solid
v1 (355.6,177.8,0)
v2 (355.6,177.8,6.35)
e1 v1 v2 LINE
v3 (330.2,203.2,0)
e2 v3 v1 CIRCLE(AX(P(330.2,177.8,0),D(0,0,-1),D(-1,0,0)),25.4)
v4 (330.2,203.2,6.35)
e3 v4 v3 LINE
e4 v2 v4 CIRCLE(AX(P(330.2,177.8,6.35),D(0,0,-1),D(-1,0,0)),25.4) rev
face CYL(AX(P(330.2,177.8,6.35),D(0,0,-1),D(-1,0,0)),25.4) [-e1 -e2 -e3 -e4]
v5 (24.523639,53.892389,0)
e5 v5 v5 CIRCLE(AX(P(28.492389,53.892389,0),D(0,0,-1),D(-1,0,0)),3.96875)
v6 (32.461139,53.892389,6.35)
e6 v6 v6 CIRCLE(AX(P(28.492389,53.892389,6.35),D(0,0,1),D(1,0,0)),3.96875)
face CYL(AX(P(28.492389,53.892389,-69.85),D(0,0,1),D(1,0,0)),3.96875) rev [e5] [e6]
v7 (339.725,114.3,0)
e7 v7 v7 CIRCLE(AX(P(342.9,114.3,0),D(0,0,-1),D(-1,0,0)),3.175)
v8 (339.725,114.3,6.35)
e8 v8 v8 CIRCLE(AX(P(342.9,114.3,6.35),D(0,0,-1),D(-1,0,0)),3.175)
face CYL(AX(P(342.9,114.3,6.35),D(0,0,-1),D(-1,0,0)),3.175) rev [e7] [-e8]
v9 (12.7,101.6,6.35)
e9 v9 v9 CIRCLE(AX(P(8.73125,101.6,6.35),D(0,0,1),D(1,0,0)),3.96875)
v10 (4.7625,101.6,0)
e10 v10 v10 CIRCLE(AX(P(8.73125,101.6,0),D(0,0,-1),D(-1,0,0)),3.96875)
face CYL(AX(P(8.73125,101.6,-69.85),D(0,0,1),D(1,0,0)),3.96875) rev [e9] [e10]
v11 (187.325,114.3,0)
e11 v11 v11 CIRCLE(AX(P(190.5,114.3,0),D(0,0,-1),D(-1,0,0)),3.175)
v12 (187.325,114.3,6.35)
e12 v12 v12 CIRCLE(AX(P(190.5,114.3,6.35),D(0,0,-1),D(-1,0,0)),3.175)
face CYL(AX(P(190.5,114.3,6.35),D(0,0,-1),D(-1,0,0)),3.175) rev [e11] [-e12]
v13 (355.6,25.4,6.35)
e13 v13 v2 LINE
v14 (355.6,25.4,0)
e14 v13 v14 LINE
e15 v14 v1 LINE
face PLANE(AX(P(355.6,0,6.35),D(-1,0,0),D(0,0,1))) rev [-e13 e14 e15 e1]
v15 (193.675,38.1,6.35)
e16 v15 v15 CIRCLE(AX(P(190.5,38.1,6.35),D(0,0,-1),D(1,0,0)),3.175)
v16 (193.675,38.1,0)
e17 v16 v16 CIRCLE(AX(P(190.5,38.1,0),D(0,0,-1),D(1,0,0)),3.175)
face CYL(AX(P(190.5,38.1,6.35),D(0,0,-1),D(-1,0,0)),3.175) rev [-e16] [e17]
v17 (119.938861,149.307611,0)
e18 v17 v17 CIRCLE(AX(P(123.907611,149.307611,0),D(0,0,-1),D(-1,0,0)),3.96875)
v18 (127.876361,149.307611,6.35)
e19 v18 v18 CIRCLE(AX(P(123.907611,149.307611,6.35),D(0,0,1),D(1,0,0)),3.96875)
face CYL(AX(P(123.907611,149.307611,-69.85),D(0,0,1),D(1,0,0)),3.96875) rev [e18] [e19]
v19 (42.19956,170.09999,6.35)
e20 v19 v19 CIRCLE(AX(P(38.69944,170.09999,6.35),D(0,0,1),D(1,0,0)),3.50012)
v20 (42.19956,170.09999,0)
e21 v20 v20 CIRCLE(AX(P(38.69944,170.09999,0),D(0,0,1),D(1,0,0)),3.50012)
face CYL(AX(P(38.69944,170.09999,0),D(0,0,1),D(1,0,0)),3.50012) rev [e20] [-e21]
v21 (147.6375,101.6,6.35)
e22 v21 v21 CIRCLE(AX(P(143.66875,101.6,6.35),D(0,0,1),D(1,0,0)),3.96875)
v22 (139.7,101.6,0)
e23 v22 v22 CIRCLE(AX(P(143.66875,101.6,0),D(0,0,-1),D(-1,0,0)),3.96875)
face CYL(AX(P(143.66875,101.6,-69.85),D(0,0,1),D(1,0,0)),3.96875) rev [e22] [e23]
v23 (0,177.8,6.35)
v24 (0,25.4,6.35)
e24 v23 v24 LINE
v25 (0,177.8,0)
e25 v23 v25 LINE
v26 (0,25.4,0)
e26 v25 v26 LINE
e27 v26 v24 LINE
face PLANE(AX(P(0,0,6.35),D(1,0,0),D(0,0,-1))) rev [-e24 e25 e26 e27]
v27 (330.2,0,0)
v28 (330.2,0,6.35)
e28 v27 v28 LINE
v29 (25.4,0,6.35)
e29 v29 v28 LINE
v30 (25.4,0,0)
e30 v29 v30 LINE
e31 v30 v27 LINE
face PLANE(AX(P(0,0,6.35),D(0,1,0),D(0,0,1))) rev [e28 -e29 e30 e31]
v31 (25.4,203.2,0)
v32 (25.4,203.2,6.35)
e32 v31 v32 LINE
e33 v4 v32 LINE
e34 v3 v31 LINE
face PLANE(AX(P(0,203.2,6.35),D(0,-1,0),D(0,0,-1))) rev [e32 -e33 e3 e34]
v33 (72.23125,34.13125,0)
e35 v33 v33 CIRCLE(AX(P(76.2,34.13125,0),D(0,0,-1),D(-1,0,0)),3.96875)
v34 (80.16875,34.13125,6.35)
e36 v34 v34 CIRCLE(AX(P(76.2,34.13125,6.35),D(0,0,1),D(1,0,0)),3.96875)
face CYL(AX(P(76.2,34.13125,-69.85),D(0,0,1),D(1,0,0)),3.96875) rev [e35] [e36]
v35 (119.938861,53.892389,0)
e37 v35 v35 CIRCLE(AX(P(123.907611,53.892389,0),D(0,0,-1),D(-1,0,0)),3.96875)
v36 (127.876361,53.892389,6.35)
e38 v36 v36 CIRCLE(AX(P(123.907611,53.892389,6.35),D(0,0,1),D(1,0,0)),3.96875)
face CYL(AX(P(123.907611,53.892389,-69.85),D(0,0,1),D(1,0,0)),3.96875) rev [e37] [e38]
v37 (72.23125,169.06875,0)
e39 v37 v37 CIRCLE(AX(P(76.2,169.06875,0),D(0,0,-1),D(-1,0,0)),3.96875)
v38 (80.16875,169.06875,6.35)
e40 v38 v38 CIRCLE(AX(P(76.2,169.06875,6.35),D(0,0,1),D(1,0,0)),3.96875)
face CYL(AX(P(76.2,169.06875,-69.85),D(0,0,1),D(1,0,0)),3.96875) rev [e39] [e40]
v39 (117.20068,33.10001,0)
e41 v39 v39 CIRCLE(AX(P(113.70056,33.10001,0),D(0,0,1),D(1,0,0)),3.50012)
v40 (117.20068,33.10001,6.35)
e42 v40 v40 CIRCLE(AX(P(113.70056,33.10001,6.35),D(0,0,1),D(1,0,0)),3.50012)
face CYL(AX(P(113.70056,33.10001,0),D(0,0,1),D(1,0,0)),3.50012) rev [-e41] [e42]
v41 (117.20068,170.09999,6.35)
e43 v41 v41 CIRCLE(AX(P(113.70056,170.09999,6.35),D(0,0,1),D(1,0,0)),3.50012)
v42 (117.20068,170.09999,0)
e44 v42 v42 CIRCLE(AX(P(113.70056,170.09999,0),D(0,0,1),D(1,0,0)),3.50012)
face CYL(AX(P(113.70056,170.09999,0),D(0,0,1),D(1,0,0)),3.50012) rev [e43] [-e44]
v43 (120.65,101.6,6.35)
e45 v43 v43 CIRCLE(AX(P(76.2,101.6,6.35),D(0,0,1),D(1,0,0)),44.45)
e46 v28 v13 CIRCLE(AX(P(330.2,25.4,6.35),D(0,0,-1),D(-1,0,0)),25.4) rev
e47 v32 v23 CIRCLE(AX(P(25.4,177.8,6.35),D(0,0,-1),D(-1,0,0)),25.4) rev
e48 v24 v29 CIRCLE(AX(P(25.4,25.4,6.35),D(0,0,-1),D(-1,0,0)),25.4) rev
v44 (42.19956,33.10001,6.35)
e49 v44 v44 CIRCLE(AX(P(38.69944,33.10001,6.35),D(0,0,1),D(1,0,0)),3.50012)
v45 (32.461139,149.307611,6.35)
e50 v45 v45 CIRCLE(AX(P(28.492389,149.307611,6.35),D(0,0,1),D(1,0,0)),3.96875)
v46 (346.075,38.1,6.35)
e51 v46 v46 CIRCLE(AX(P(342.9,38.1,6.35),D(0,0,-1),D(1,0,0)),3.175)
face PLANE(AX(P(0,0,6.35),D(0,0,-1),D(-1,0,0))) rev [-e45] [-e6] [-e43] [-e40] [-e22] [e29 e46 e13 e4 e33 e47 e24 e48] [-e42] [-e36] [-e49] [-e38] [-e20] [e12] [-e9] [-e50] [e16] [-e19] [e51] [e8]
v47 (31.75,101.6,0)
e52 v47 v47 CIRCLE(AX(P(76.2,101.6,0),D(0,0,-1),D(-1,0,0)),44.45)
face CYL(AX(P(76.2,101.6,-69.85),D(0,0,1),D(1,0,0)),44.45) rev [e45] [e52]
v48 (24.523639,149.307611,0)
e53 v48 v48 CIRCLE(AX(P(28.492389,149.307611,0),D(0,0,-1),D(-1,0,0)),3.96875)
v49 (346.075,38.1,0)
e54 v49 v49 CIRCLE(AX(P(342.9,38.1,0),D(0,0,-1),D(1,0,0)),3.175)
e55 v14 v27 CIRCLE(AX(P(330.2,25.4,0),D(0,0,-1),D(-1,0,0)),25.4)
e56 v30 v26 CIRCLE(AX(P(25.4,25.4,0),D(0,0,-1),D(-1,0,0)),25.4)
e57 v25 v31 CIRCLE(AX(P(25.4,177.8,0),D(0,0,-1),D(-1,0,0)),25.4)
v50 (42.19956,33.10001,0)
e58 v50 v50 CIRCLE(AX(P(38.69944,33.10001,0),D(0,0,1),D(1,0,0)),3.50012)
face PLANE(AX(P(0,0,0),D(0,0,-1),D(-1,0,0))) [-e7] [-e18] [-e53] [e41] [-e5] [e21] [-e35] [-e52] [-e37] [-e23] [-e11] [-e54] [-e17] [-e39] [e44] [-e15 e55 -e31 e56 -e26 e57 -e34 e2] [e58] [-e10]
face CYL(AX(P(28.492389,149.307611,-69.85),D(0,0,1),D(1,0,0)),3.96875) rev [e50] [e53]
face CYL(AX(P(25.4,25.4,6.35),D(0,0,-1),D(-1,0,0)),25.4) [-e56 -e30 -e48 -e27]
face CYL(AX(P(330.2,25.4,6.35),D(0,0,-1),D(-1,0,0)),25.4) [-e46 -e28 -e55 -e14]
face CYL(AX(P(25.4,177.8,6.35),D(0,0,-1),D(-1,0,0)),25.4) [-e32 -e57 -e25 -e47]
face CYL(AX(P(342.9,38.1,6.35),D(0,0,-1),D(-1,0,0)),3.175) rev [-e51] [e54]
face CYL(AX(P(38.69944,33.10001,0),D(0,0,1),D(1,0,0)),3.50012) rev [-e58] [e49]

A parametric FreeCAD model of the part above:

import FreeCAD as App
import Part
import Sketcher

V = App.Vector
Q = App.Units.Quantity


def edges_at(feature, points):
    """Names of the edges that pass closest to the given points."""
    edges = feature.Shape.Edges
    near = lambda p: min(range(len(edges)), key=lambda i: edges[i].distToShape(Part.Vertex(*p))[0])
    return sorted({f"Edge{near(p) + 1}" for p in points})

doc = App.newDocument("Part")
body = doc.addObject("PartDesign::Body", "Body")

sketch1 = doc.addObject("Sketcher::SketchObject", "Sketch")
body.addObject(sketch1)
sketch1.AttachmentSupport = (doc.XY_Plane, [""])
sketch1.MapMode = "FlatFace"
sketch1.addGeometry(Part.LineSegment(V(0, 203.2, 0), V(0, 0, 0)), False)
sketch1.addGeometry(Part.LineSegment(V(0, 0, 0), V(355.6, 0, 0)), False)
sketch1.addGeometry(Part.LineSegment(V(355.6, 0, 0), V(355.6, 203.2, 0)), False)
sketch1.addGeometry(Part.LineSegment(V(355.6, 203.2, 0), V(0, 203.2, 0)), False)
sketch1.addConstraint(Sketcher.Constraint("Coincident", 0, 2, 1, 1))
sketch1.addConstraint(Sketcher.Constraint("Coincident", 1, 2, 2, 1))
sketch1.addConstraint(Sketcher.Constraint("Coincident", 2, 2, 3, 1))
sketch1.addConstraint(Sketcher.Constraint("Coincident", 3, 2, 0, 1))
sketch1.addConstraint(Sketcher.Constraint("Vertical", 0))
sketch1.addConstraint(Sketcher.Constraint("Horizontal", 1))
sketch1.addConstraint(Sketcher.Constraint("Vertical", 2))
sketch1.addConstraint(Sketcher.Constraint("Horizontal", 3))
sketch1.addConstraint(Sketcher.Constraint("Coincident", 0, 2, -1, 1))
sketch1.addConstraint(Sketcher.Constraint("DistanceX", 1, 1, 1, 2, Q("14 in")))
sketch1.addConstraint(Sketcher.Constraint("DistanceY", 0, 2, 0, 1, Q("8 in")))
pad1 = doc.addObject("PartDesign::Pad", "Pad")
body.addObject(pad1)
pad1.Profile = sketch1
pad1.Length = Q("0.25 in")

sketch2 = doc.addObject("Sketcher::SketchObject", "Sketch001")
body.addObject(sketch2)
sketch2.AttachmentSupport = (doc.XY_Plane, [""])
sketch2.MapMode = "FlatFace"
sketch2.AttachmentOffset = App.Placement(V(0, 0, 0.25 * 25.4), App.Rotation())
sketch2.addGeometry(Part.Circle(V(76.2, 101.6, 0), V(0, 0, 1), 44.45), False)
sketch2.addGeometry(Part.Circle(V(143.66875, 101.6, 0), V(0, 0, 1), 3.96875), False)
sketch2.addGeometry(Part.Circle(V(123.907611, 53.892389, 0), V(0, 0, 1), 3.96875), False)
sketch2.addGeometry(Part.Circle(V(76.2, 34.13125, 0), V(0, 0, 1), 3.96875), False)
sketch2.addGeometry(Part.Circle(V(28.492389, 53.892389, 0), V(0, 0, 1), 3.96875), False)
sketch2.addGeometry(Part.Circle(V(8.73125, 101.6, 0), V(0, 0, 1), 3.96875), False)
sketch2.addGeometry(Part.Circle(V(28.492389, 149.307611, 0), V(0, 0, 1), 3.96875), False)
sketch2.addGeometry(Part.Circle(V(76.2, 169.06875, 0), V(0, 0, 1), 3.96875), False)
sketch2.addGeometry(Part.Circle(V(123.907611, 149.307611, 0), V(0, 0, 1), 3.96875), False)
sketch2.addConstraint(Sketcher.Constraint("Equal", 1, 2))
sketch2.addConstraint(Sketcher.Constraint("Equal", 2, 3))
sketch2.addConstraint(Sketcher.Constraint("Equal", 3, 4))
sketch2.addConstraint(Sketcher.Constraint("Equal", 4, 5))
sketch2.addConstraint(Sketcher.Constraint("Equal", 5, 6))
sketch2.addConstraint(Sketcher.Constraint("Equal", 6, 7))
sketch2.addConstraint(Sketcher.Constraint("Equal", 7, 8))
sketch2.addConstraint(Sketcher.Constraint("Horizontal", 0, 3, 1, 3))
sketch2.addConstraint(Sketcher.Constraint("Horizontal", 2, 3, 4, 3))
sketch2.addConstraint(Sketcher.Constraint("Horizontal", 1, 3, 5, 3))
sketch2.addConstraint(Sketcher.Constraint("Horizontal", 6, 3, 8, 3))
sketch2.addConstraint(Sketcher.Constraint("Vertical", 0, 3, 3, 3))
sketch2.addConstraint(Sketcher.Constraint("Vertical", 4, 3, 6, 3))
sketch2.addConstraint(Sketcher.Constraint("Vertical", 3, 3, 7, 3))
sketch2.addConstraint(Sketcher.Constraint("Vertical", 2, 3, 8, 3))
sketch2.addConstraint(Sketcher.Constraint("Diameter", 0, Q("3.5 in")))
sketch2.addConstraint(Sketcher.Constraint("Diameter", 1, Q("0.3125 in")))
sketch2.addConstraint(Sketcher.Constraint("DistanceX", -1, 1, 0, 3, Q("3 in")))
sketch2.addConstraint(Sketcher.Constraint("DistanceY", -1, 1, 0, 3, Q("4 in")))
sketch2.addConstraint(Sketcher.Constraint("DistanceX", -1, 1, 1, 3, Q("5.65625 in")))
sketch2.addConstraint(Sketcher.Constraint("DistanceY", -1, 1, 3, 3, Q("1.34375 in")))
sketch2.addConstraint(Sketcher.Constraint("DistanceX", -1, 1, 5, 3, Q("0.34375 in")))
sketch2.addConstraint(Sketcher.Constraint("DistanceY", -1, 1, 7, 3, Q("6.65625 in")))
sketch2.addConstraint(Sketcher.Constraint("DistanceX", -1, 1, 2, 3, 123.907611))
sketch2.addConstraint(Sketcher.Constraint("DistanceY", -1, 1, 2, 3, 53.892389))
sketch2.addConstraint(Sketcher.Constraint("DistanceX", -1, 1, 4, 3, 28.492389))
sketch2.addConstraint(Sketcher.Constraint("DistanceY", -1, 1, 6, 3, 149.307611))
pocket1 = doc.addObject("PartDesign::Pocket", "Pocket")
body.addObject(pocket1)
pocket1.Profile = sketch2
pocket1.Length = Q("3 in")

sketch3 = doc.addObject("Sketcher::SketchObject", "Sketch002")
body.addObject(sketch3)
sketch3.AttachmentSupport = (doc.XY_Plane, [""])
sketch3.MapMode = "FlatFace"
sketch3.AttachmentOffset = App.Placement(V(0, 0, 0.25 * 25.4), App.Rotation())
sketch3.addGeometry(Part.Circle(V(38.69944, 170.09999, 0), V(0, 0, 1), 3.50012), False)
sketch3.addGeometry(Part.Circle(V(113.70056, 170.09999, 0), V(0, 0, 1), 3.50012), False)
sketch3.addGeometry(Part.Circle(V(113.70056, 33.10001, 0), V(0, 0, 1), 3.50012), False)
sketch3.addGeometry(Part.Circle(V(38.69944, 33.10001, 0), V(0, 0, 1), 3.50012), False)
sketch3.addConstraint(Sketcher.Constraint("Equal", 0, 1))
sketch3.addConstraint(Sketcher.Constraint("Equal", 1, 2))
sketch3.addConstraint(Sketcher.Constraint("Equal", 2, 3))
sketch3.addConstraint(Sketcher.Constraint("Horizontal", 0, 3, 1, 3))
sketch3.addConstraint(Sketcher.Constraint("Horizontal", 2, 3, 3, 3))
sketch3.addConstraint(Sketcher.Constraint("Vertical", 1, 3, 2, 3))
sketch3.addConstraint(Sketcher.Constraint("Vertical", 0, 3, 3, 3))
sketch3.addConstraint(Sketcher.Constraint("Diameter", 0, Q("0.2756 in")))
sketch3.addConstraint(Sketcher.Constraint("DistanceX", -1, 1, 0, 3, Q("1.5236 in")))
sketch3.addConstraint(Sketcher.Constraint("DistanceX", -1, 1, 1, 3, Q("4.4764 in")))
sketch3.addConstraint(Sketcher.Constraint("DistanceY", 2, 3, 1, 3, Q("5.3937 in")))
sketch3.addConstraint(Sketcher.Constraint("DistanceY", -1, 1, 0, 3, 170.09999))
pocket2 = doc.addObject("PartDesign::Pocket", "Pocket001")
body.addObject(pocket2)
pocket2.Profile = sketch3
pocket2.Length = Q("0.25 in")
doc.recompute()

fillet = doc.addObject("PartDesign::Fillet", "Fillet")
body.addObject(fillet)
fillet.Base = (pocket2, edges_at(pocket2, [
    (0, 203.2, 3.175),
    (355.6, 203.2, 3.175),
    (355.6, 0, 3.175),
    (0, 0, 3.175),
]))
fillet.Radius = Q("1 in")

sketch4 = doc.addObject("Sketcher::SketchObject", "Sketch003")
body.addObject(sketch4)
sketch4.AttachmentSupport = (doc.XY_Plane, [""])
sketch4.MapMode = "FlatFace"
sketch4.addGeometry(Part.Circle(V(342.9, 114.3, 0), V(0, 0, 1), 3.175), False)
sketch4.addGeometry(Part.Circle(V(190.5, 114.3, 0), V(0, 0, 1), 3.175), False)
sketch4.addGeometry(Part.Circle(V(190.5, 38.1, 0), V(0, 0, 1), 3.175), False)
sketch4.addGeometry(Part.Circle(V(342.9, 38.1, 0), V(0, 0, 1), 3.175), False)
sketch4.addConstraint(Sketcher.Constraint("Equal", 0, 1))
sketch4.addConstraint(Sketcher.Constraint("Equal", 1, 2))
sketch4.addConstraint(Sketcher.Constraint("Equal", 2, 3))
sketch4.addConstraint(Sketcher.Constraint("Horizontal", 0, 3, 1, 3))
sketch4.addConstraint(Sketcher.Constraint("Horizontal", 2, 3, 3, 3))
sketch4.addConstraint(Sketcher.Constraint("Vertical", 1, 3, 2, 3))
sketch4.addConstraint(Sketcher.Constraint("Vertical", 0, 3, 3, 3))
sketch4.addConstraint(Sketcher.Constraint("Diameter", 0, Q("0.25 in")))
sketch4.addConstraint(Sketcher.Constraint("DistanceX", 1, 3, 0, 3, Q("6 in")))
sketch4.addConstraint(Sketcher.Constraint("DistanceY", 2, 3, 1, 3, Q("3 in")))
sketch4.addConstraint(Sketcher.Constraint("DistanceX", -1, 1, 0, 3, Q("13.5 in")))
sketch4.addConstraint(Sketcher.Constraint("DistanceY", -1, 1, 0, 3, Q("4.5 in")))
pocket3 = doc.addObject("PartDesign::Pocket", "Pocket002")
body.addObject(pocket3)
pocket3.Profile = sketch4
pocket3.Length = Q("0.25 in")
pocket3.Reversed = True

doc.recompute()
